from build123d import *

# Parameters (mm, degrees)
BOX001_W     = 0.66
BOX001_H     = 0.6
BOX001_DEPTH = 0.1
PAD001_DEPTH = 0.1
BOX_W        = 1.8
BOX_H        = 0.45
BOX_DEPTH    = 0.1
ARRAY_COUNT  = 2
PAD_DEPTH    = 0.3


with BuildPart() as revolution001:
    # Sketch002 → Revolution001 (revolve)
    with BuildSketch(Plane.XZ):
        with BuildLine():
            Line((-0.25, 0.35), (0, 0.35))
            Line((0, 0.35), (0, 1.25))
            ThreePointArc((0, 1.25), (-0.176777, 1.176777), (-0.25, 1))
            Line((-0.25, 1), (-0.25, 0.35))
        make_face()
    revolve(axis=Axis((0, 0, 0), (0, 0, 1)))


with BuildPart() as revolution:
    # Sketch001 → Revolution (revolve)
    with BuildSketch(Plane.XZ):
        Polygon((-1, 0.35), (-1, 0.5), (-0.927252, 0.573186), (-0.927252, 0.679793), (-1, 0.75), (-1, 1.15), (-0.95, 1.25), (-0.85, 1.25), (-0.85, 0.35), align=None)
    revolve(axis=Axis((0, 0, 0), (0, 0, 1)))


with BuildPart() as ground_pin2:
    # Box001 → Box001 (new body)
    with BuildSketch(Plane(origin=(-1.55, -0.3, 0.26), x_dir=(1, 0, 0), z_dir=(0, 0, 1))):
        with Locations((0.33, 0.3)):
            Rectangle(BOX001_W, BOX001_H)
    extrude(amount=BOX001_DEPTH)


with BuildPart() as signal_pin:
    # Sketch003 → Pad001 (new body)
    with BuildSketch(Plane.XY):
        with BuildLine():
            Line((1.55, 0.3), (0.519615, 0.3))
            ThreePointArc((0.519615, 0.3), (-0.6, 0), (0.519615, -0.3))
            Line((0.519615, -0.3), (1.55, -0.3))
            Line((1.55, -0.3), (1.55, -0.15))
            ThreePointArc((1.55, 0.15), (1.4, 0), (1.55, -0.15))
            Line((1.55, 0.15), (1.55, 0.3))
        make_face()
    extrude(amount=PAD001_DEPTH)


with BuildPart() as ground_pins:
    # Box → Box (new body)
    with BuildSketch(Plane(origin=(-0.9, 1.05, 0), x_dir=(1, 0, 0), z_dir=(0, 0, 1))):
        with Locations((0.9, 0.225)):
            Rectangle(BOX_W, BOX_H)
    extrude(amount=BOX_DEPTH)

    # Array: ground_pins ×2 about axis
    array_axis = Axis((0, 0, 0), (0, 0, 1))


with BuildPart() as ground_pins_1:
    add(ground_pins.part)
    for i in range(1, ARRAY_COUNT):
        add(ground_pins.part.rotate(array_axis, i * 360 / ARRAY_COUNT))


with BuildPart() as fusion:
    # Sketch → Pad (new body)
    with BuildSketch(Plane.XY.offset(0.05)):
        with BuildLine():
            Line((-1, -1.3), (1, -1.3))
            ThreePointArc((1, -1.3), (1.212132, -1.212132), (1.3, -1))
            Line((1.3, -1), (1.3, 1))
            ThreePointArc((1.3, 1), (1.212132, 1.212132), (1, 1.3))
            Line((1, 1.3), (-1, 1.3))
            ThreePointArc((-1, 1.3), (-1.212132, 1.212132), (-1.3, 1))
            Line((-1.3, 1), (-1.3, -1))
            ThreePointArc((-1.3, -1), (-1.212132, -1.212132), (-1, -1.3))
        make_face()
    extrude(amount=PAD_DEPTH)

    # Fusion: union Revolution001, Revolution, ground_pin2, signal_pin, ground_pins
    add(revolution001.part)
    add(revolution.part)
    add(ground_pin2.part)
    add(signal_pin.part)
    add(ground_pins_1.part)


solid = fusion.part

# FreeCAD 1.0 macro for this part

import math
import FreeCAD as App
import Part
import Sketcher

V = App.Vector
Q = App.Units.Quantity

doc = App.newDocument("Part")
params = doc.addObject("Spreadsheet::Sheet", "Params")
for row, (alias, value) in enumerate([
    ("sketch1_radius", "0.249999 mm"),
    ("sketch1_height", "0.9 mm"),
    ("revolution_angle", "360 deg"),
    ("sketch2_width", "0.1 mm"),
    ("sketch2_height", "0.9 mm"),
    ("sketch2_height2", "0.4 mm"),
    ("sketch2_width2", "0.15 mm"),
    ("revolution2_angle", "360 deg"),
    ("sketch3_height", "0.6 mm"),
    ("sketch3_width", "0.66 mm"),
    ("pad1_length", "0.1 mm"),
    ("sketch4_radius", "0.6 mm"),
    ("sketch4_radius2", "0.15 mm"),
    ("sketch4_height", "0.15 mm"),
    ("pad2_length", "0.1 mm"),
    ("sketch5_width", "1.8 mm"),
    ("sketch5_height", "0.45 mm"),
    ("pad3_length", "0.1 mm"),
    ("sketch6_radius", "0.3 mm"),
    ("sketch6_width", "2 mm"),
    ("pad4_length", "0.3 mm"),
], start=1):
    params.set(f"A{row}", alias)
    params.set(f"B{row}", "=" + value)
    params.setAlias(f"B{row}", alias)

body = doc.addObject("PartDesign::Body", "Body")

# Sketch on XZ plane
sketch1 = body.newObject("Sketcher::SketchObject", "Sketch")
sketch1.AttachmentSupport = (doc.getObject("XZ_Plane"), [""])
sketch1.MapMode = "FlatFace"
sketch1.addGeometry([
    Part.LineSegment(V(-0.25, 0.35, 0), V(0, 0.35, 0)),
    Part.LineSegment(V(0, 0.35, 0), V(0, 1.25, 0)),
    Part.ArcOfCircle(Part.Circle(V(-0.000001, 1.000001, 0), V(0, 0, 1), 0.249999), math.radians(89.999762), math.radians(180.000238)),
    Part.LineSegment(V(-0.25, 1, 0), V(-0.25, 0.35, 0)),
], False)
sketch1.addConstraint([
    Sketcher.Constraint("Coincident", 0, 2, 1, 1),
    Sketcher.Constraint("Coincident", 1, 2, 2, 1),
    Sketcher.Constraint("Coincident", 2, 2, 3, 1),
    Sketcher.Constraint("Coincident", 3, 2, 0, 1),
    Sketcher.Constraint("Horizontal", 0),
    Sketcher.Constraint("Vertical", 1),
    Sketcher.Constraint("Vertical", 3),
    Sketcher.Constraint("PointOnObject", 2, 3, -2),
    Sketcher.Constraint("PointOnObject", 0, 2, -2),
    Sketcher.Constraint("Radius", 2, Q("0.249999 mm")),
    Sketcher.Constraint("DistanceY", 1, 1, 1, 2, Q("0.9 mm")),
    Sketcher.Constraint("DistanceY", -1, 1, 2, 3, Q("1.000001 mm")),
    Sketcher.Constraint("DistanceY", -1, 1, 2, 2, Q("1 mm")),
])
sketch1.setExpression("Constraints[9]", "Params.sketch1_radius")
sketch1.setExpression("Constraints[10]", "Params.sketch1_height")
revolution = body.newObject("PartDesign::Revolution", "Revolution")
revolution.Profile = sketch1
revolution.ReferenceAxis = (sketch1, ["V_Axis"])
revolution.setExpression("Angle", "Params.revolution_angle")
body2 = doc.addObject("PartDesign::Body", "Body001")

# Sketch on XZ plane
sketch2 = body2.newObject("Sketcher::SketchObject", "Sketch001")
sketch2.AttachmentSupport = (doc.getObject("XZ_Plane001"), [""])
sketch2.MapMode = "FlatFace"
sketch2.addGeometry([
    Part.LineSegment(V(-1, 0.5, 0), V(-1, 0.35, 0)),  # 0
    Part.LineSegment(V(-1, 0.35, 0), V(-0.85, 0.35, 0)),  # 1
    Part.LineSegment(V(-0.85, 0.35, 0), V(-0.85, 1.25, 0)),  # 2
    Part.LineSegment(V(-0.85, 1.25, 0), V(-0.95, 1.25, 0)),  # 3
    Part.LineSegment(V(-0.95, 1.25, 0), V(-1, 1.15, 0)),  # 4
    Part.LineSegment(V(-1, 1.15, 0), V(-1, 0.75, 0)),  # 5
    Part.LineSegment(V(-1, 0.75, 0), V(-0.927252, 0.679793, 0)),  # 6
    Part.LineSegment(V(-0.927252, 0.679793, 0), V(-0.927252, 0.573186, 0)),  # 7
    Part.LineSegment(V(-0.927252, 0.573186, 0), V(-1, 0.5, 0)),  # 8
], False)
sketch2.addConstraint([
    Sketcher.Constraint("Coincident", 0, 2, 1, 1),
    Sketcher.Constraint("Coincident", 1, 2, 2, 1),
    Sketcher.Constraint("Coincident", 2, 2, 3, 1),
    Sketcher.Constraint("Coincident", 3, 2, 4, 1),
    Sketcher.Constraint("Coincident", 4, 2, 5, 1),
    Sketcher.Constraint("Coincident", 5, 2, 6, 1),
    Sketcher.Constraint("Coincident", 6, 2, 7, 1),
    Sketcher.Constraint("Coincident", 7, 2, 8, 1),
    Sketcher.Constraint("Coincident", 8, 2, 0, 1),
    Sketcher.Constraint("Vertical", 0),
    Sketcher.Constraint("Horizontal", 1),
    Sketcher.Constraint("Vertical", 2),
    Sketcher.Constraint("Horizontal", 3),
    Sketcher.Constraint("Vertical", 5),
    Sketcher.Constraint("Vertical", 7),
    Sketcher.Constraint("Vertical", 0, 2, 4, 2),
    Sketcher.Constraint("Equal", 1, 0),
    Sketcher.Constraint("DistanceX", 3, 2, 3, 1, Q("0.1 mm")),
    Sketcher.Constraint("DistanceY", 2, 1, 2, 2, Q("0.9 mm")),
    Sketcher.Constraint("DistanceY", 5, 2, 5, 1, Q("0.4 mm")),
    Sketcher.Constraint("DistanceX", 0, 2, -1, 1, Q("1 mm")),
    Sketcher.Constraint("DistanceX", 1, 1, 1, 2, Q("0.15 mm")),
    Sketcher.Constraint("DistanceY", -1, 1, 8, 2, Q("0.5 mm")),
    Sketcher.Constraint("DistanceY", 4, 2, 3, 2, Q("0.1 mm")),
    Sketcher.Constraint("Distance", 6, Q("0.1011 mm")),
    Sketcher.Constraint("Distance", 8, Q("0.103191 mm")),
    Sketcher.Constraint("DistanceY", 7, 2, 7, 1, Q("0.106607 mm")),
])
sketch2.setExpression("Constraints[17]", "Params.sketch2_width")
sketch2.setExpression("Constraints[18]", "Params.sketch2_height")
sketch2.setExpression("Constraints[19]", "Params.sketch2_height2")
sketch2.setExpression("Constraints[21]", "Params.sketch2_width2")
revolution2 = body2.newObject("PartDesign::Revolution", "Revolution001")
revolution2.Profile = sketch2
revolution2.ReferenceAxis = (sketch2, ["V_Axis"])
revolution2.setExpression("Angle", "Params.revolution2_angle")
body3 = doc.addObject("PartDesign::Body", "Body002")

# Sketch on XY plane
sketch3 = body3.newObject("Sketcher::SketchObject", "Sketch002")
sketch3.AttachmentSupport = (doc.getObject("XY_Plane002"), [""])
sketch3.MapMode = "FlatFace"
sketch3.AttachmentOffset = App.Placement(V(0, 0, 0.26), App.Rotation())
sketch3.addGeometry([
    Part.LineSegment(V(-1.55, 0.3, 0), V(-1.55, -0.3, 0)),
    Part.LineSegment(V(-1.55, -0.3, 0), V(-0.89, -0.3, 0)),
    Part.LineSegment(V(-0.89, -0.3, 0), V(-0.89, 0.3, 0)),
    Part.LineSegment(V(-0.89, 0.3, 0), V(-1.55, 0.3, 0)),
], False)
sketch3.addConstraint([
    Sketcher.Constraint("Coincident", 0, 2, 1, 1),
    Sketcher.Constraint("Coincident", 1, 2, 2, 1),
    Sketcher.Constraint("Coincident", 2, 2, 3, 1),
    Sketcher.Constraint("Coincident", 3, 2, 0, 1),
    Sketcher.Constraint("Vertical", 0),
    Sketcher.Constraint("Horizontal", 1),
    Sketcher.Constraint("Vertical", 2),
    Sketcher.Constraint("Horizontal", 3),
    Sketcher.Constraint("DistanceY", 0, 2, 0, 1, Q("0.6 mm")),
    Sketcher.Constraint("DistanceX", 1, 1, 1, 2, Q("0.66 mm")),
    Sketcher.Constraint("DistanceY", 0, 2, -1, 1, Q("0.3 mm")),
    Sketcher.Constraint("DistanceX", 0, 2, -1, 1, Q("1.55 mm")),
])
sketch3.setExpression("Constraints[8]", "Params.sketch3_height")
sketch3.setExpression("Constraints[9]", "Params.sketch3_width")
pad1 = body3.newObject("PartDesign::Pad", "Pad")
pad1.Profile = sketch3
pad1.setExpression("Length", "Params.pad1_length")
body4 = doc.addObject("PartDesign::Body", "Body003")

# Sketch on XY plane
sketch4 = body4.newObject("Sketcher::SketchObject", "Sketch003")
sketch4.AttachmentSupport = (doc.getObject("XY_Plane003"), [""])
sketch4.MapMode = "FlatFace"
sketch4.addGeometry([
    Part.LineSegment(V(1.55, 0.3, 0), V(0.519615, 0.3, 0)),  # 0
    Part.ArcOfCircle(Part.Circle(V(0, 0, 0), V(0, 0, 1), 0.6), math.radians(30.000006), math.radians(329.999994)),  # 1
    Part.LineSegment(V(0.519615, -0.3, 0), V(1.55, -0.3, 0)),  # 2
    Part.LineSegment(V(1.55, -0.3, 0), V(1.55, -0.15, 0)),  # 3
    Part.ArcOfCircle(Part.Circle(V(1.55, 0, 0), V(0, 0, 1), 0.15), math.radians(90), math.radians(270)),  # 4
    Part.LineSegment(V(1.55, 0.15, 0), V(1.55, 0.3, 0)),  # 5
], False)
sketch4.addConstraint([
    Sketcher.Constraint("Coincident", 0, 2, 1, 1),
    Sketcher.Constraint("Coincident", 1, 2, 2, 1),
    Sketcher.Constraint("Coincident", 2, 2, 3, 1),
    Sketcher.Constraint("Coincident", 3, 2, 4, 2),
    Sketcher.Constraint("Coincident", 4, 1, 5, 1),
    Sketcher.Constraint("Coincident", 5, 2, 0, 1),
    Sketcher.Constraint("Horizontal", 0),
    Sketcher.Constraint("Horizontal", 2),
    Sketcher.Constraint("Vertical", 3),
    Sketcher.Constraint("Vertical", 5),
    Sketcher.Constraint("Coincident", 1, 3, -1, 1),
    Sketcher.Constraint("Symmetric", 3, 2, 4, 1, -1),
    Sketcher.Constraint("Vertical", 0, 2, 1, 2),
    Sketcher.Constraint("Vertical", 4, 3, 2, 2),
    Sketcher.Constraint("Radius", 1, Q("0.6 mm")),
    Sketcher.Constraint("Radius", 4, Q("0.15 mm")),
    Sketcher.Constraint("DistanceY", 3, 1, 3, 2, Q("0.15 mm")),
    Sketcher.Constraint("DistanceX", -1, 1, 4, 3, Q("1.55 mm")),
])
sketch4.setExpression("Constraints[14]", "Params.sketch4_radius")
sketch4.setExpression("Constraints[15]", "Params.sketch4_radius2")
sketch4.setExpression("Constraints[16]", "Params.sketch4_height")
pad2 = body4.newObject("PartDesign::Pad", "Pad001")
pad2.Profile = sketch4
pad2.setExpression("Length", "Params.pad2_length")
body5 = doc.addObject("PartDesign::Body", "Body004")

# Sketch on XY plane
sketch5 = body5.newObject("Sketcher::SketchObject", "Sketch004")
sketch5.AttachmentSupport = (doc.getObject("XY_Plane004"), [""])
sketch5.MapMode = "FlatFace"
sketch5.addGeometry([
    Part.LineSegment(V(-0.9, 1.5, 0), V(-0.9, 1.05, 0)),
    Part.LineSegment(V(-0.9, 1.05, 0), V(0.9, 1.05, 0)),
    Part.LineSegment(V(0.9, 1.05, 0), V(0.9, 1.5, 0)),
    Part.LineSegment(V(0.9, 1.5, 0), V(-0.9, 1.5, 0)),
], False)
sketch5.addConstraint([
    Sketcher.Constraint("Coincident", 0, 2, 1, 1),
    Sketcher.Constraint("Coincident", 1, 2, 2, 1),
    Sketcher.Constraint("Coincident", 2, 2, 3, 1),
    Sketcher.Constraint("Coincident", 3, 2, 0, 1),
    Sketcher.Constraint("Vertical", 0),
    Sketcher.Constraint("Horizontal", 1),
    Sketcher.Constraint("Vertical", 2),
    Sketcher.Constraint("Horizontal", 3),
    Sketcher.Constraint("DistanceX", 1, 1, 1, 2, Q("1.8 mm")),
    Sketcher.Constraint("DistanceY", 0, 2, 0, 1, Q("0.45 mm")),
    Sketcher.Constraint("DistanceX", 0, 2, -1, 1, Q("0.9 mm")),
    Sketcher.Constraint("DistanceY", -1, 1, 2, 2, Q("1.5 mm")),
])
sketch5.setExpression("Constraints[8]", "Params.sketch5_width")
sketch5.setExpression("Constraints[9]", "Params.sketch5_height")
pad3 = body5.newObject("PartDesign::Pad", "Pad002")
pad3.Profile = sketch5
pad3.setExpression("Length", "Params.pad3_length")
body6 = doc.addObject("PartDesign::Body", "Body005")
body6.AllowCompound = True
doc.recompute()

body6.BaseFeature = body5
doc.recompute()

body5.Placement = App.Placement(V(0, 0, 0), App.Rotation(V(0, 0, 1), 180))
boolean = body6.newObject("PartDesign::Boolean", "Boolean")
boolean.Type = "Fuse"
boolean.addObjects([body5])
body7 = doc.addObject("PartDesign::Body", "Body006")

# Sketch on XY plane
sketch6 = body7.newObject("Sketcher::SketchObject", "Sketch005")
sketch6.AttachmentSupport = (doc.getObject("XY_Plane006"), [""])
sketch6.MapMode = "FlatFace"
sketch6.AttachmentOffset = App.Placement(V(0, 0, 0.05), App.Rotation())
sketch6.addGeometry([
    Part.LineSegment(V(-1, -1.3, 0), V(1, -1.3, 0)),  # 0
    Part.ArcOfCircle(Part.Circle(V(1, -1, 0), V(0, 0, 1), 0.3), math.radians(-89.999978), math.radians(-0.000022)),  # 1
    Part.LineSegment(V(1.3, -1, 0), V(1.3, 1, 0)),  # 2
    Part.ArcOfCircle(Part.Circle(V(1, 1, 0), V(0, 0, 1), 0.3), math.radians(0.000022), math.radians(89.999978)),  # 3
    Part.LineSegment(V(1, 1.3, 0), V(-1, 1.3, 0)),  # 4
    Part.ArcOfCircle(Part.Circle(V(-1, 1, 0), V(0, 0, 1), 0.3), math.radians(90.000022), math.radians(179.999978)),  # 5
    Part.LineSegment(V(-1.3, 1, 0), V(-1.3, -1, 0)),  # 6
    Part.ArcOfCircle(Part.Circle(V(-1, -1, 0), V(0, 0, 1), 0.3), math.radians(-179.999978), math.radians(-90.000022)),  # 7
], False)
sketch6.addConstraint([
    Sketcher.Constraint("Tangent", 0, 2, 1, 1),
    Sketcher.Constraint("Tangent", 1, 2, 2, 1),
    Sketcher.Constraint("Tangent", 2, 2, 3, 1),
    Sketcher.Constraint("Tangent", 3, 2, 4, 1),
    Sketcher.Constraint("Tangent", 4, 2, 5, 1),
    Sketcher.Constraint("Tangent", 5, 2, 6, 1),
    Sketcher.Constraint("Tangent", 6, 2, 7, 1),
    Sketcher.Constraint("Tangent", 7, 2, 0, 1),
    Sketcher.Constraint("Horizontal", 0),
    Sketcher.Constraint("Vertical", 2),
    Sketcher.Constraint("Horizontal", 4),
    Sketcher.Constraint("Vertical", 6),
    Sketcher.Constraint("Equal", 1, 3),
    Sketcher.Constraint("Equal", 3, 5),
    Sketcher.Constraint("Equal", 5, 7),
    Sketcher.Constraint("Symmetric", 1, 3, 5, 3, -1, 1),
    Sketcher.Constraint("Equal", 4, 2),
    Sketcher.Constraint("Radius", 1, Q("0.3 mm")),
    Sketcher.Constraint("DistanceX", 0, 1, 0, 2, Q("2 mm")),
])
sketch6.setExpression("Constraints[17]", "Params.sketch6_radius")
sketch6.setExpression("Constraints[18]", "Params.sketch6_width")
pad4 = body7.newObject("PartDesign::Pad", "Pad003")
pad4.Profile = sketch6
pad4.setExpression("Length", "Params.pad4_length")
doc.recompute()

boolean2 = body7.newObject("PartDesign::Boolean", "Boolean001")
boolean2.Type = "Fuse"
boolean2.addObjects([body])
doc.recompute()

boolean3 = body7.newObject("PartDesign::Boolean", "Boolean002")
boolean3.Type = "Fuse"
boolean3.addObjects([body2])
doc.recompute()

boolean4 = body7.newObject("PartDesign::Boolean", "Boolean003")
boolean4.Type = "Fuse"
boolean4.addObjects([body3])
doc.recompute()

boolean5 = body7.newObject("PartDesign::Boolean", "Boolean004")
boolean5.Type = "Fuse"
boolean5.addObjects([body4])
doc.recompute()

boolean6 = body7.newObject("PartDesign::Boolean", "Boolean005")
boolean6.Type = "Fuse"
boolean6.addObjects([body6])

doc.recompute()
